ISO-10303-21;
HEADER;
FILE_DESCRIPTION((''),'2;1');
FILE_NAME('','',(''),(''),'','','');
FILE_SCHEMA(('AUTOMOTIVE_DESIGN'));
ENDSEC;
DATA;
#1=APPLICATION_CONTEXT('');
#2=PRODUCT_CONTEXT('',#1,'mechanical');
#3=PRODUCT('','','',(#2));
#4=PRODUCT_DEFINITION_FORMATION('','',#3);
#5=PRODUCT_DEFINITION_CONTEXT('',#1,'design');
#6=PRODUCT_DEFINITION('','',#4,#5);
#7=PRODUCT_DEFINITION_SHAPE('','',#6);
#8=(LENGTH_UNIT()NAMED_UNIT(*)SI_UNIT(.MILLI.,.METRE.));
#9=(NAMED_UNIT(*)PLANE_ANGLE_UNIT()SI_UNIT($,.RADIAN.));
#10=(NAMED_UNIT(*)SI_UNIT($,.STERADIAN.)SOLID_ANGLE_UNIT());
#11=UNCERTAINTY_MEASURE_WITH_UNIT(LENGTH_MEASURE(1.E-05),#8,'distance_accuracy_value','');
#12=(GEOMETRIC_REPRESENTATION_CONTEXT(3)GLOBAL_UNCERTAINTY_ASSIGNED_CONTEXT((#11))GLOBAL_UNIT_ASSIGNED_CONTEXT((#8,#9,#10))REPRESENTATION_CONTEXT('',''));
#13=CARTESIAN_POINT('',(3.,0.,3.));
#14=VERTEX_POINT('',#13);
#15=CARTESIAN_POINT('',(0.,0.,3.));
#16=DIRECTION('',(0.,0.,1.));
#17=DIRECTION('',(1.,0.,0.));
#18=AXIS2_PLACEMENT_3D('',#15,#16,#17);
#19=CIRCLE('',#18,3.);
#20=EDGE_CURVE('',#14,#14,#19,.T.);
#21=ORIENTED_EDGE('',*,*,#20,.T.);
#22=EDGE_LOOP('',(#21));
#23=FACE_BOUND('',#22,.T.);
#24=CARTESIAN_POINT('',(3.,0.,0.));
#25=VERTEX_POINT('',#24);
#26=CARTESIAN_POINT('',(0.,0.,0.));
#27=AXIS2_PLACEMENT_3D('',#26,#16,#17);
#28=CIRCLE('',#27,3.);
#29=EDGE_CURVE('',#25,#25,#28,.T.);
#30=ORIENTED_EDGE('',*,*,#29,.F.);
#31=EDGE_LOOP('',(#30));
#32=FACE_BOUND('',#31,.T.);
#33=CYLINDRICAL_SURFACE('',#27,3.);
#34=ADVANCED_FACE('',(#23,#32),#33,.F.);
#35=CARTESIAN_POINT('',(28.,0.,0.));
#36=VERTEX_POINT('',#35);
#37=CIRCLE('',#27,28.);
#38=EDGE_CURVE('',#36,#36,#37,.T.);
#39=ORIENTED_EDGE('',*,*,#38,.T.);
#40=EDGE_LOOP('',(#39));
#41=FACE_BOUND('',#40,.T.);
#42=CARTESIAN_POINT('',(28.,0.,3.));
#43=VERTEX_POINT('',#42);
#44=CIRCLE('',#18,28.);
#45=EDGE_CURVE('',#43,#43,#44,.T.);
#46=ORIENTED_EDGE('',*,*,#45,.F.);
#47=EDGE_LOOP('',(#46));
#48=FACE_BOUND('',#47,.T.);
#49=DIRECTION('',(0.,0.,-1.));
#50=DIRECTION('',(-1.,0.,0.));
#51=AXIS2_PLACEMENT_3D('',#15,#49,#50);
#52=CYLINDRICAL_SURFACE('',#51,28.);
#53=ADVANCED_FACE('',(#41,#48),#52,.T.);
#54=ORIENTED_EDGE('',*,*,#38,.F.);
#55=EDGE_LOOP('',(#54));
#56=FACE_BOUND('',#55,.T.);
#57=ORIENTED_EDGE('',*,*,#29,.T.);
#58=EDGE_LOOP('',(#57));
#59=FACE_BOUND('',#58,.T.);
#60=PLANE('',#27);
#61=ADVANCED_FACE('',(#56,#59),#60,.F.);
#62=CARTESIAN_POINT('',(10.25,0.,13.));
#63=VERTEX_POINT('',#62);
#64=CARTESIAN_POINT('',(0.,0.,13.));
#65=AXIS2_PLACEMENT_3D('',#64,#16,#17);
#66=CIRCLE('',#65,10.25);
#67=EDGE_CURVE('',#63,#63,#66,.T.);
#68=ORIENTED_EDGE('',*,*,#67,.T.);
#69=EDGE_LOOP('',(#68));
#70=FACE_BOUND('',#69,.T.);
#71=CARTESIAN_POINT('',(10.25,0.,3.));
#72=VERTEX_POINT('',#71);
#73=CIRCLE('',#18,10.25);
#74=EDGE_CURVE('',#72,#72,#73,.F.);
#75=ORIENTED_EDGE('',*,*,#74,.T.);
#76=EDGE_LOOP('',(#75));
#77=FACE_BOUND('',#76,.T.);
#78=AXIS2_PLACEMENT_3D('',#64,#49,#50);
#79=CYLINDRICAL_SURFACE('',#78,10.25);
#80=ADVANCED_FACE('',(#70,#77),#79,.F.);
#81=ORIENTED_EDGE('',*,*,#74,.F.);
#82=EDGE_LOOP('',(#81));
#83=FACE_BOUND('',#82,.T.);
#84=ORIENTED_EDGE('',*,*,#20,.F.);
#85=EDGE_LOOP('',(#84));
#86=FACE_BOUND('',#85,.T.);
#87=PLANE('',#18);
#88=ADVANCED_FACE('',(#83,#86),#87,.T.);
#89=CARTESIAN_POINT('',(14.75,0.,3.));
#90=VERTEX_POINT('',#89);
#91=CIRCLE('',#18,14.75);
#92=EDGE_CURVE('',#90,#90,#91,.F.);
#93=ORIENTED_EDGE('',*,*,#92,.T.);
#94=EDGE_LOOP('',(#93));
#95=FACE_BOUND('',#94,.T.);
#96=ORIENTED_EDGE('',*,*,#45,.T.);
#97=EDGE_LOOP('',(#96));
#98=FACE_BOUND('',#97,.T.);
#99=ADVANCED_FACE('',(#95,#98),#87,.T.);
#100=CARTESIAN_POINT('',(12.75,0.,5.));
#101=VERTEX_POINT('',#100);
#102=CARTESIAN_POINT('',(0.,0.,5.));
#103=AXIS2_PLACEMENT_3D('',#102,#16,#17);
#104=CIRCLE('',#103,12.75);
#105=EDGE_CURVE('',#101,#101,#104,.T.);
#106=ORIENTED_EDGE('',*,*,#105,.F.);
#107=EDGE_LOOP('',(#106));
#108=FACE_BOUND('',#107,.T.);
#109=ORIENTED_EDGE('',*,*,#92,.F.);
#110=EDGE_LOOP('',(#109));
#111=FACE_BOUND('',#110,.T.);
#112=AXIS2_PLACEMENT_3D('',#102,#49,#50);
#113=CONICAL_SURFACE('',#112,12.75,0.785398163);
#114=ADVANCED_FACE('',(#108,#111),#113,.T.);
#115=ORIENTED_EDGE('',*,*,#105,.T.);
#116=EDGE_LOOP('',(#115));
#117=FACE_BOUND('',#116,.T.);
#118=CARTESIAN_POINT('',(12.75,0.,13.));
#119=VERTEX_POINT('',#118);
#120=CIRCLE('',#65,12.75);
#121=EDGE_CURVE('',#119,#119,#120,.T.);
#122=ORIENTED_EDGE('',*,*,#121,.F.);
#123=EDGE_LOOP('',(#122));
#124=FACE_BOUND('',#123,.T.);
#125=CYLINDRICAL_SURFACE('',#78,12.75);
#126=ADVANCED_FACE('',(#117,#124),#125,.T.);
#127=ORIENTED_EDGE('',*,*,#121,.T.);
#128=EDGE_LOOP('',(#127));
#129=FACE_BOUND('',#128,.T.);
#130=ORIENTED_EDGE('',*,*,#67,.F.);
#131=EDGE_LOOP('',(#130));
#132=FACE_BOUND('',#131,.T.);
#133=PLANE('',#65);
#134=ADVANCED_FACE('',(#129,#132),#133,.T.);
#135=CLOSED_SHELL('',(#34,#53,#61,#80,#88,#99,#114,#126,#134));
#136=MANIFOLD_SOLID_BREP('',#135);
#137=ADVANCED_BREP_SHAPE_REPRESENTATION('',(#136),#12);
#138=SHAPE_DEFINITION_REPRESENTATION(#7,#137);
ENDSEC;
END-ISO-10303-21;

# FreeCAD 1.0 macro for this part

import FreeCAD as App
import Part
import Sketcher
from FreeCAD import Vector
Q = App.Units.Quantity


def edges_at(feature, points):
    """Names of the edges that pass closest to the given points."""
    edges = feature.Shape.Edges
    near = lambda p: min(range(len(edges)), key=lambda i: edges[i].distToShape(Part.Vertex(*p))[0])
    return sorted({f"Edge{near(p) + 1}" for p in points})

doc = App.newDocument("Part")
body = doc.addObject("PartDesign::Body", "Body")

sketch1 = body.newObject("Sketcher::SketchObject", "Sketch")
sketch1.AttachmentSupport = (doc.getObject("XY_Plane"), [""])
sketch1.MapMode = "FlatFace"
sketch1.addGeometry(Part.Circle(Vector(0, 0, 0), Vector(0, 0, 1), 28), False)
sketch1.addConstraint(Sketcher.Constraint("Coincident", 0, 3, -1, 1))
sketch1.addConstraint(Sketcher.Constraint("Diameter", 0, Q("56 mm")))
pad1 = body.newObject("PartDesign::Pad", "Pad")
pad1.Profile = sketch1
pad1.Length = 3

sketch2 = body.newObject("Sketcher::SketchObject", "Sketch001")
sketch2.AttachmentSupport = (doc.getObject("XY_Plane"), [""])
sketch2.MapMode = "FlatFace"
sketch2.AttachmentOffset = App.Placement(Vector(0, 0, 3), App.Rotation())
sketch2.addGeometry(Part.Circle(Vector(0, 0, 0), Vector(0, 0, 1), 3), False)
sketch2.addConstraint(Sketcher.Constraint("Coincident", 0, 3, -1, 1))
sketch2.addConstraint(Sketcher.Constraint("Diameter", 0, Q("6 mm")))
pocket1 = body.newObject("PartDesign::Pocket", "Pocket")
pocket1.Profile = sketch2
pocket1.Type = "ThroughAll"
pocket1.Midplane = True

sketch3 = body.newObject("Sketcher::SketchObject", "Sketch002")
sketch3.AttachmentSupport = (doc.getObject("XY_Plane"), [""])
sketch3.MapMode = "FlatFace"
sketch3.AttachmentOffset = App.Placement(Vector(0, 0, 3), App.Rotation())
sketch3.addGeometry(Part.Circle(Vector(0, 0, 0), Vector(0, 0, 1), 12.75), False)
sketch3.addGeometry(Part.Circle(Vector(0, 0, 0), Vector(0, 0, 1), 10.25), False)
sketch3.addConstraint(Sketcher.Constraint("Coincident", 0, 3, -1, 1))
sketch3.addConstraint(Sketcher.Constraint("Coincident", 1, 3, -1, 1))
sketch3.addConstraint(Sketcher.Constraint("Diameter", 0, Q("25.5 mm")))
sketch3.addConstraint(Sketcher.Constraint("Diameter", 1, Q("20.5 mm")))
pad2 = body.newObject("PartDesign::Pad", "Pad001")
pad2.Profile = sketch3
pad2.Length = 10
doc.recompute()

chamfer = body.newObject("PartDesign::Chamfer", "Chamfer")
chamfer.Base = (pad2, edges_at(pad2, [(-12.75, 0, 3)]))
chamfer.Size = 2

doc.recompute()
